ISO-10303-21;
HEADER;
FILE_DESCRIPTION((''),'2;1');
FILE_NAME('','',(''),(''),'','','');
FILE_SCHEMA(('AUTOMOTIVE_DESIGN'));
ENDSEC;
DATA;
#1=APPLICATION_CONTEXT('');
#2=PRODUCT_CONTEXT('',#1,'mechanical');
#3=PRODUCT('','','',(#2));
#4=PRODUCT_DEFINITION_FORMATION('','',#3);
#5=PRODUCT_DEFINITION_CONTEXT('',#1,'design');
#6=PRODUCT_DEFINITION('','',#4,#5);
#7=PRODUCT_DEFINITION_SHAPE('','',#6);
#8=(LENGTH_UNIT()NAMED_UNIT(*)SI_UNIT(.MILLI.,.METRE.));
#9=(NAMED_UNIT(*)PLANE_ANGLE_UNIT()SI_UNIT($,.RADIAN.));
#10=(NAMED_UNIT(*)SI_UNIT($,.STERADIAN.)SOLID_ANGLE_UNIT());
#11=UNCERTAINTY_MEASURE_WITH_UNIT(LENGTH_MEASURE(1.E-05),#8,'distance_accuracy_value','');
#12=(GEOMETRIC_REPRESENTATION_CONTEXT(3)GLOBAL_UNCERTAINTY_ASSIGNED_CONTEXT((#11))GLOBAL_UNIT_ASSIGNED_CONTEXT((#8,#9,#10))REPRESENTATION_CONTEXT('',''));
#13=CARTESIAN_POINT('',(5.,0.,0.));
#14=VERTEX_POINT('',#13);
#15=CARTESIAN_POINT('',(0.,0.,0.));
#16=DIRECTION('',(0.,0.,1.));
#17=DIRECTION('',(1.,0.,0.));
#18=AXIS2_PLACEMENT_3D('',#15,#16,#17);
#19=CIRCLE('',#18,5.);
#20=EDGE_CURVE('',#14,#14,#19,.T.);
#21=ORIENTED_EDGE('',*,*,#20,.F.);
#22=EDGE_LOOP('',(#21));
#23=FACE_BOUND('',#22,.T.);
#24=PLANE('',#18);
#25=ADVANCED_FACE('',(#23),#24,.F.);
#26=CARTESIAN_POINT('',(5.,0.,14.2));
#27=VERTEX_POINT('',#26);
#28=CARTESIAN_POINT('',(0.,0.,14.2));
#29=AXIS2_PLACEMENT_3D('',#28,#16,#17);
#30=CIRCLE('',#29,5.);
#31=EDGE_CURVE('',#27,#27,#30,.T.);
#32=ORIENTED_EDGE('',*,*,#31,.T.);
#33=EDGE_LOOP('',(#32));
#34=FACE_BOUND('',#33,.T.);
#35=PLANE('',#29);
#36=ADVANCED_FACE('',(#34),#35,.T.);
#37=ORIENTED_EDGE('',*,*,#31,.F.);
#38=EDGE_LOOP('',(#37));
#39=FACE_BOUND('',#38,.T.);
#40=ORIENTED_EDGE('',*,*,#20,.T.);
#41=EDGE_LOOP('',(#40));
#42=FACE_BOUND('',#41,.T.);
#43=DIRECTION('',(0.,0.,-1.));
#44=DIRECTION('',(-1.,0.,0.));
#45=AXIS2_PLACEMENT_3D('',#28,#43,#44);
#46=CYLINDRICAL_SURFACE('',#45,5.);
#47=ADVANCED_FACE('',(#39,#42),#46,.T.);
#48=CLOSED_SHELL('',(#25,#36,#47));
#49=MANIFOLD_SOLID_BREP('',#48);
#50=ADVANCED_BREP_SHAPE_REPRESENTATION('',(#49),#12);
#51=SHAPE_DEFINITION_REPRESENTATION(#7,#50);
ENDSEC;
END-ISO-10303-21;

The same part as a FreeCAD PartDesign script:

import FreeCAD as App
import Part
import Sketcher

doc = App.newDocument("Part")
params = doc.addObject("Spreadsheet::Sheet", "Params")
for row, (alias, value) in enumerate([
    ("sketch1_diameter", "10 mm"),
    ("pad1_length", "14.2 mm"),
], start=1):
    params.set(f"A{row}", alias)
    params.set(f"B{row}", "=" + value)
    params.setAlias(f"B{row}", alias)

body = doc.addObject("PartDesign::Body", "Body")

# Sketch on XY plane
sketch1 = body.newObject("Sketcher::SketchObject", "Sketch")
sketch1.AttachmentSupport = (doc.getObject("XY_Plane"), [""])
sketch1.MapMode = "FlatFace"
sketch1.addGeometry(Part.Circle(App.Vector(0, 0, 0), App.Vector(0, 0, 1), 5), False)
sketch1.addConstraint([
    Sketcher.Constraint("Coincident", 0, 3, -1, 1),
    Sketcher.Constraint("Diameter", 0, 10.0),
])
sketch1.setExpression("Constraints[1]", "Params.sketch1_diameter")
pad1 = body.newObject("PartDesign::Pad", "Pad")
pad1.Profile = sketch1
pad1.setExpression("Length", "Params.pad1_length")

doc.recompute()
